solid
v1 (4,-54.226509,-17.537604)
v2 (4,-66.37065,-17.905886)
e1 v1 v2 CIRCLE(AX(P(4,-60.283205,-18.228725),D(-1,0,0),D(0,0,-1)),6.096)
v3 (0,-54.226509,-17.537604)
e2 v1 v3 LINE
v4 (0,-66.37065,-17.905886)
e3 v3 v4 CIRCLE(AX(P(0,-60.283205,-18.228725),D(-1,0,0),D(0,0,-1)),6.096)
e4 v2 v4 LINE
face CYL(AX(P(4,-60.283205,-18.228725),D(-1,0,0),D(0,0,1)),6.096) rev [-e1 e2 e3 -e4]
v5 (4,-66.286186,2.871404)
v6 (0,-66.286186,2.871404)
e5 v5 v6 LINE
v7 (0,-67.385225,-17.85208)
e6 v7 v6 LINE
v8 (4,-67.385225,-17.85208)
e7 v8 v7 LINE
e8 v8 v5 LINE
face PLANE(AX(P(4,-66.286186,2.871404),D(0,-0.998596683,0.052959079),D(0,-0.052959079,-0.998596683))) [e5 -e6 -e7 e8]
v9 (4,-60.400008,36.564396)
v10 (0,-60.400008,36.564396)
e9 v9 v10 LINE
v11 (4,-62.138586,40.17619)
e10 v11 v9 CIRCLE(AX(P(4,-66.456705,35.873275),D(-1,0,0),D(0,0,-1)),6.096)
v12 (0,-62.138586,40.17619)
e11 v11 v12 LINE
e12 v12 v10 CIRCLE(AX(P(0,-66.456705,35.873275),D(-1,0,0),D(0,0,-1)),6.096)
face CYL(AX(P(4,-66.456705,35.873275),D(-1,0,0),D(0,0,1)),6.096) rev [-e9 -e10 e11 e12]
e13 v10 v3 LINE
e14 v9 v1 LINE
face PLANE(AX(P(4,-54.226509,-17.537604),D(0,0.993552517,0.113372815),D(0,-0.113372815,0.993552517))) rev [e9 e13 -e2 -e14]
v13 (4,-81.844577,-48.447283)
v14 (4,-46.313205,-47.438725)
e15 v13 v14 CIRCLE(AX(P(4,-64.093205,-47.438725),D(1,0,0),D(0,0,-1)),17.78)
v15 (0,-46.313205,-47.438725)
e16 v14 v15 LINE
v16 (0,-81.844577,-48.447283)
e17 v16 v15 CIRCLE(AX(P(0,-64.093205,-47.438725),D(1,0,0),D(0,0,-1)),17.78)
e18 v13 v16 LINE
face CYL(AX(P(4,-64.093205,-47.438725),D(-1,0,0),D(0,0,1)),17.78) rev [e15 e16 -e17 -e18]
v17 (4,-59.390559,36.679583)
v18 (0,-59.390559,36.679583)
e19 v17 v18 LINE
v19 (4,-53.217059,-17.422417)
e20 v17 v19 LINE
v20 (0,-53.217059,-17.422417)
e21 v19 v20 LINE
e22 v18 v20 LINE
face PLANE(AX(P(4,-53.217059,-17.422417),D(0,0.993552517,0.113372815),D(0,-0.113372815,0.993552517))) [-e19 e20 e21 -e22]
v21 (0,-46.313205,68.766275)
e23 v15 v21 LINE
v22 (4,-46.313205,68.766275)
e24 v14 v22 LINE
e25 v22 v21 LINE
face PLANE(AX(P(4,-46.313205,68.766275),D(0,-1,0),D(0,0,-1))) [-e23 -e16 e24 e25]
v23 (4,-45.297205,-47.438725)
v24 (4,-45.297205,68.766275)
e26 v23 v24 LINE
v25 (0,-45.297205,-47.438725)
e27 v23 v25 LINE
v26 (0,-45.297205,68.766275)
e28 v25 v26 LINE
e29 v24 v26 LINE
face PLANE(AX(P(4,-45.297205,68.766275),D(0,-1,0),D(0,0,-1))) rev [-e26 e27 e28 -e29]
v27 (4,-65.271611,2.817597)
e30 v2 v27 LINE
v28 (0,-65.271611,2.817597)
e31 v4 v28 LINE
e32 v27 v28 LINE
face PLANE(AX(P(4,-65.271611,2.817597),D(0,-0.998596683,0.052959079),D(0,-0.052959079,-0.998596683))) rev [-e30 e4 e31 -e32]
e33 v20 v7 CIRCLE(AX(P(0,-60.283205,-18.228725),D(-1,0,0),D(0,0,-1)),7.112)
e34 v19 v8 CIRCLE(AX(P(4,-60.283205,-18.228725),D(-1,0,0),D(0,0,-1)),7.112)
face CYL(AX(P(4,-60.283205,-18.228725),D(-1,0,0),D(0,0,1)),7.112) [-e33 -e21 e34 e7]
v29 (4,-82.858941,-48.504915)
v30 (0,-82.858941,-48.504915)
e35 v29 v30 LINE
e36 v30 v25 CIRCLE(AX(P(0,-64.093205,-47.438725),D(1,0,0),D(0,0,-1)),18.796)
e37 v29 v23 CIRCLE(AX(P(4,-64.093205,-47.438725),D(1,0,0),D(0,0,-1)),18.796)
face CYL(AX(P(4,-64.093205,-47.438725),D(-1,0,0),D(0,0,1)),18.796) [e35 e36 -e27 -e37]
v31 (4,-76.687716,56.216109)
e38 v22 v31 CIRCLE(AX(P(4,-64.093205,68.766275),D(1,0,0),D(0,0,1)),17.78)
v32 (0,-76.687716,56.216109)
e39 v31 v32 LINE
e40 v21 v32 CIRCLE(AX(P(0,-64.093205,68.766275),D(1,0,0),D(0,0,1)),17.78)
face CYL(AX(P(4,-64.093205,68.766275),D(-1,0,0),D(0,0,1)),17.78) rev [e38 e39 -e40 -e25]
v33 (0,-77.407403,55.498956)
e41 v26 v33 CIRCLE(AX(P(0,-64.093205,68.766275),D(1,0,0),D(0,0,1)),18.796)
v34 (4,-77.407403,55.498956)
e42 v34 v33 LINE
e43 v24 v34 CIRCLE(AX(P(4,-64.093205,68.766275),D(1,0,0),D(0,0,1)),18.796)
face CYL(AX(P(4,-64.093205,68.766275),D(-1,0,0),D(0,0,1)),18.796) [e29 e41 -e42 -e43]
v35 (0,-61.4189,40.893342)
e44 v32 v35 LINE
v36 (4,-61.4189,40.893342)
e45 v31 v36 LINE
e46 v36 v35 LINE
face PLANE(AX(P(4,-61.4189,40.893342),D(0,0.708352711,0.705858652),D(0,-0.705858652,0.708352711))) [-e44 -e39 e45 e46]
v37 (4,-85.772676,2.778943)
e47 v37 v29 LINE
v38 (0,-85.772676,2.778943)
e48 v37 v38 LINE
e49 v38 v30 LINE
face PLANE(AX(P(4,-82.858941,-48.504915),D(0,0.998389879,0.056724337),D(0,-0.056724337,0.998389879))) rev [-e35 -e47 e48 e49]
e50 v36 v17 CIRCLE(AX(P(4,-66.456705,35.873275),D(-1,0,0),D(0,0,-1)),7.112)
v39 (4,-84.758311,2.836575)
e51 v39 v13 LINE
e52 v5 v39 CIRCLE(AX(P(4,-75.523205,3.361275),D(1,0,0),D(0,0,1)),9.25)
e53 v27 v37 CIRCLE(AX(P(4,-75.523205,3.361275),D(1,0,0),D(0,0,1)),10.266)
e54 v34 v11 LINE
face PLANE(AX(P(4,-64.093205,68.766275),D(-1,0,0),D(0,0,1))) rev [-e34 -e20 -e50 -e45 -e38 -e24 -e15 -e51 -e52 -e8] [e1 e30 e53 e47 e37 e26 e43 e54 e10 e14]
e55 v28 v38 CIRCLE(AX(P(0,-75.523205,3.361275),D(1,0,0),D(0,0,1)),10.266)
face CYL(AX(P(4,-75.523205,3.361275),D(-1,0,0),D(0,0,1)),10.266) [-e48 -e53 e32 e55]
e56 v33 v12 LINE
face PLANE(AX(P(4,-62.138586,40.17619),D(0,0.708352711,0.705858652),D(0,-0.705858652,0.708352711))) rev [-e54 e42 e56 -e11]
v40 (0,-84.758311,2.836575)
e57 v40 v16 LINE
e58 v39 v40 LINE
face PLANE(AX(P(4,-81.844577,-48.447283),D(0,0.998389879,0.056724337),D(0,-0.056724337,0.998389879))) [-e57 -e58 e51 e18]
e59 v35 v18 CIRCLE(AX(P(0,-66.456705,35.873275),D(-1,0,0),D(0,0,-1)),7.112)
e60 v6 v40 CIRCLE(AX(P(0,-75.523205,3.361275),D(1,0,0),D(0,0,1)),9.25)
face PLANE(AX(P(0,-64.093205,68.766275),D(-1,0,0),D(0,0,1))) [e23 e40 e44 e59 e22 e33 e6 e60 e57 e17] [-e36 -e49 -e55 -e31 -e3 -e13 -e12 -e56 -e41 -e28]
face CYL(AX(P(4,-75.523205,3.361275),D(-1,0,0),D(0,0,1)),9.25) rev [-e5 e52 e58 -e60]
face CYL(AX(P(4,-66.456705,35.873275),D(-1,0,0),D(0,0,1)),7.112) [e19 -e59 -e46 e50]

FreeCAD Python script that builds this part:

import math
import FreeCAD as App
import Part
import Sketcher
from FreeCAD import Vector
Q = App.Units.Quantity

doc = App.newDocument("Part")
body = doc.addObject("PartDesign::Body", "Body")

# Sketch on YZ plane
sketch1 = body.newObject("Sketcher::SketchObject", "Sketch")
sketch1.AttachmentSupport = (doc.getObject("YZ_Plane"), [""])
sketch1.MapMode = "FlatFace"
sketch1.addGeometry(Part.LineSegment(Vector(-45.3, -47.4, 0), Vector(-45.3, 68.8, 0)), False)
sketch1.addGeometry(Part.ArcOfCircle(Part.Circle(Vector(-64.1, 68.8, 0), Vector(0, 0, 1), 18.8), math.radians(0), math.radians(225)), False)
sketch1.addGeometry(Part.LineSegment(Vector(-77.4, 55.5, 0), Vector(-62.1, 40.2, 0)), False)
sketch1.addGeometry(Part.ArcOfCircle(Part.Circle(Vector(-66.5, 35.9, 0), Vector(0, 0, 1), 6.1), math.radians(7), math.radians(45)), False)
sketch1.addGeometry(Part.LineSegment(Vector(-60.4, 36.6, 0), Vector(-54.2, -17.5, 0)), False)
sketch1.addGeometry(Part.ArcOfCircle(Part.Circle(Vector(-60.3, -18.2, 0), Vector(0, 0, 1), 6.1), math.radians(177), math.radians(367)), False)
sketch1.addGeometry(Part.LineSegment(Vector(-66.4, -17.9, 0), Vector(-65.3, 2.8, 0)), False)
sketch1.addGeometry(Part.ArcOfCircle(Part.Circle(Vector(-75.5, 3.4, 0), Vector(0, 0, 1), 10.3), math.radians(-3), math.radians(183)), False)
sketch1.addGeometry(Part.LineSegment(Vector(-85.8, 2.8, 0), Vector(-82.9, -48.5, 0)), False)
sketch1.addGeometry(Part.ArcOfCircle(Part.Circle(Vector(-64.1, -47.4, 0), Vector(0, 0, 1), 18.8), math.radians(-177), math.radians(0)), False)
sketch1.addGeometry(Part.LineSegment(Vector(-81.8, -48.4, 0), Vector(-84.8, 2.8, 0)), False)
sketch1.addGeometry(Part.ArcOfCircle(Part.Circle(Vector(-75.5, 3.4, 0), Vector(0, 0, 1), 9.2), math.radians(-3), math.radians(183)), False)
sketch1.addGeometry(Part.LineSegment(Vector(-66.3, 2.9, 0), Vector(-67.4, -17.9, 0)), False)
sketch1.addGeometry(Part.ArcOfCircle(Part.Circle(Vector(-60.3, -18.2, 0), Vector(0, 0, 1), 7.1), math.radians(177), math.radians(367)), False)
sketch1.addGeometry(Part.LineSegment(Vector(-53.2, -17.4, 0), Vector(-59.4, 36.7, 0)), False)
sketch1.addGeometry(Part.ArcOfCircle(Part.Circle(Vector(-66.5, 35.9, 0), Vector(0, 0, 1), 7.1), math.radians(7), math.radians(45)), False)
sketch1.addGeometry(Part.LineSegment(Vector(-61.4, 40.9, 0), Vector(-76.7, 56.2, 0)), False)
sketch1.addGeometry(Part.ArcOfCircle(Part.Circle(Vector(-64.1, 68.8, 0), Vector(0, 0, 1), 17.8), math.radians(0), math.radians(225)), False)
sketch1.addGeometry(Part.LineSegment(Vector(-46.3, 68.8, 0), Vector(-46.3, -47.4, 0)), False)
sketch1.addGeometry(Part.ArcOfCircle(Part.Circle(Vector(-64.1, -47.4, 0), Vector(0, 0, 1), 17.8), math.radians(-177), math.radians(0)), False)
sketch1.addConstraint(Sketcher.Constraint("Tangent", 0, 2, 1, 1))
sketch1.addConstraint(Sketcher.Constraint("Tangent", 1, 2, 2, 1))
sketch1.addConstraint(Sketcher.Constraint("Tangent", 2, 2, 3, 2))
sketch1.addConstraint(Sketcher.Constraint("Tangent", 3, 1, 4, 1))
sketch1.addConstraint(Sketcher.Constraint("Tangent", 4, 2, 5, 2))
sketch1.addConstraint(Sketcher.Constraint("Tangent", 5, 1, 6, 1))
sketch1.addConstraint(Sketcher.Constraint("Tangent", 6, 2, 7, 1))
sketch1.addConstraint(Sketcher.Constraint("Tangent", 7, 2, 8, 1))
sketch1.addConstraint(Sketcher.Constraint("Tangent", 8, 2, 9, 1))
sketch1.addConstraint(Sketcher.Constraint("Tangent", 9, 2, 0, 1))
sketch1.addConstraint(Sketcher.Constraint("Tangent", 10, 2, 11, 2))
sketch1.addConstraint(Sketcher.Constraint("Tangent", 11, 1, 12, 1))
sketch1.addConstraint(Sketcher.Constraint("Tangent", 12, 2, 13, 1))
sketch1.addConstraint(Sketcher.Constraint("Tangent", 13, 2, 14, 1))
sketch1.addConstraint(Sketcher.Constraint("Tangent", 14, 2, 15, 1))
sketch1.addConstraint(Sketcher.Constraint("Tangent", 15, 2, 16, 1))
sketch1.addConstraint(Sketcher.Constraint("Tangent", 16, 2, 17, 2))
sketch1.addConstraint(Sketcher.Constraint("Tangent", 17, 1, 18, 1))
sketch1.addConstraint(Sketcher.Constraint("Tangent", 18, 2, 19, 2))
sketch1.addConstraint(Sketcher.Constraint("Tangent", 19, 1, 10, 1))
sketch1.addConstraint(Sketcher.Constraint("Vertical", 0))
sketch1.addConstraint(Sketcher.Constraint("Vertical", 18))
sketch1.addConstraint(Sketcher.Constraint("Coincident", 11, 3, 7, 3))
sketch1.addConstraint(Sketcher.Constraint("Coincident", 13, 3, 5, 3))
sketch1.addConstraint(Sketcher.Constraint("Coincident", 15, 3, 3, 3))
sketch1.addConstraint(Sketcher.Constraint("Coincident", 17, 3, 1, 3))
sketch1.addConstraint(Sketcher.Constraint("Coincident", 19, 3, 9, 3))
sketch1.addConstraint(Sketcher.Constraint("Equal", 3, 5))
sketch1.addConstraint(Sketcher.Constraint("Equal", 1, 9))
sketch1.addConstraint(Sketcher.Constraint("Equal", 13, 15))
sketch1.addConstraint(Sketcher.Constraint("Parallel", 8, 10))
sketch1.addConstraint(Sketcher.Constraint("Parallel", 6, 12))
sketch1.addConstraint(Sketcher.Constraint("Radius", 17, Q("0.7 in")))
sketch1.addConstraint(Sketcher.Constraint("Radius", 1, Q("0.74 in")))
sketch1.addConstraint(Sketcher.Constraint("Radius", 3, Q("0.24 in")))
sketch1.addConstraint(Sketcher.Constraint("DistanceY", 9, 3, 7, 3, Q("2 in")))
sketch1.addConstraint(Sketcher.Constraint("DistanceX", 7, 3, 5, 3, Q("0.6 in")))
sketch1.addConstraint(Sketcher.Constraint("DistanceY", 0, 1, 0, 2, Q("4.575 in")))
sketch1.addConstraint(Sketcher.Constraint("Radius", 7, 10.266))
sketch1.addConstraint(Sketcher.Constraint("DistanceY", 5, 3, 3, 3, Q("2.13 in")))
sketch1.addConstraint(Sketcher.Constraint("DistanceX", 1, 3, 5, 3, Q("0.15 in")))
sketch1.addConstraint(Sketcher.Constraint("DistanceY", 5, 3, 7, 3, Q("0.85 in")))
sketch1.addConstraint(Sketcher.Constraint("DistanceX", 15, 2, -1, 1, 61.4189))
sketch1.addConstraint(Sketcher.Constraint("DistanceX", 3, 3, 1, 3, 2.3635))
sketch1.addConstraint(Sketcher.Constraint("DistanceY", -1, 1, 2, 2, 40.17619))
pad1 = body.newObject("PartDesign::Pad", "Pad")
pad1.Profile = sketch1
pad1.Length = 4

doc.recompute()
